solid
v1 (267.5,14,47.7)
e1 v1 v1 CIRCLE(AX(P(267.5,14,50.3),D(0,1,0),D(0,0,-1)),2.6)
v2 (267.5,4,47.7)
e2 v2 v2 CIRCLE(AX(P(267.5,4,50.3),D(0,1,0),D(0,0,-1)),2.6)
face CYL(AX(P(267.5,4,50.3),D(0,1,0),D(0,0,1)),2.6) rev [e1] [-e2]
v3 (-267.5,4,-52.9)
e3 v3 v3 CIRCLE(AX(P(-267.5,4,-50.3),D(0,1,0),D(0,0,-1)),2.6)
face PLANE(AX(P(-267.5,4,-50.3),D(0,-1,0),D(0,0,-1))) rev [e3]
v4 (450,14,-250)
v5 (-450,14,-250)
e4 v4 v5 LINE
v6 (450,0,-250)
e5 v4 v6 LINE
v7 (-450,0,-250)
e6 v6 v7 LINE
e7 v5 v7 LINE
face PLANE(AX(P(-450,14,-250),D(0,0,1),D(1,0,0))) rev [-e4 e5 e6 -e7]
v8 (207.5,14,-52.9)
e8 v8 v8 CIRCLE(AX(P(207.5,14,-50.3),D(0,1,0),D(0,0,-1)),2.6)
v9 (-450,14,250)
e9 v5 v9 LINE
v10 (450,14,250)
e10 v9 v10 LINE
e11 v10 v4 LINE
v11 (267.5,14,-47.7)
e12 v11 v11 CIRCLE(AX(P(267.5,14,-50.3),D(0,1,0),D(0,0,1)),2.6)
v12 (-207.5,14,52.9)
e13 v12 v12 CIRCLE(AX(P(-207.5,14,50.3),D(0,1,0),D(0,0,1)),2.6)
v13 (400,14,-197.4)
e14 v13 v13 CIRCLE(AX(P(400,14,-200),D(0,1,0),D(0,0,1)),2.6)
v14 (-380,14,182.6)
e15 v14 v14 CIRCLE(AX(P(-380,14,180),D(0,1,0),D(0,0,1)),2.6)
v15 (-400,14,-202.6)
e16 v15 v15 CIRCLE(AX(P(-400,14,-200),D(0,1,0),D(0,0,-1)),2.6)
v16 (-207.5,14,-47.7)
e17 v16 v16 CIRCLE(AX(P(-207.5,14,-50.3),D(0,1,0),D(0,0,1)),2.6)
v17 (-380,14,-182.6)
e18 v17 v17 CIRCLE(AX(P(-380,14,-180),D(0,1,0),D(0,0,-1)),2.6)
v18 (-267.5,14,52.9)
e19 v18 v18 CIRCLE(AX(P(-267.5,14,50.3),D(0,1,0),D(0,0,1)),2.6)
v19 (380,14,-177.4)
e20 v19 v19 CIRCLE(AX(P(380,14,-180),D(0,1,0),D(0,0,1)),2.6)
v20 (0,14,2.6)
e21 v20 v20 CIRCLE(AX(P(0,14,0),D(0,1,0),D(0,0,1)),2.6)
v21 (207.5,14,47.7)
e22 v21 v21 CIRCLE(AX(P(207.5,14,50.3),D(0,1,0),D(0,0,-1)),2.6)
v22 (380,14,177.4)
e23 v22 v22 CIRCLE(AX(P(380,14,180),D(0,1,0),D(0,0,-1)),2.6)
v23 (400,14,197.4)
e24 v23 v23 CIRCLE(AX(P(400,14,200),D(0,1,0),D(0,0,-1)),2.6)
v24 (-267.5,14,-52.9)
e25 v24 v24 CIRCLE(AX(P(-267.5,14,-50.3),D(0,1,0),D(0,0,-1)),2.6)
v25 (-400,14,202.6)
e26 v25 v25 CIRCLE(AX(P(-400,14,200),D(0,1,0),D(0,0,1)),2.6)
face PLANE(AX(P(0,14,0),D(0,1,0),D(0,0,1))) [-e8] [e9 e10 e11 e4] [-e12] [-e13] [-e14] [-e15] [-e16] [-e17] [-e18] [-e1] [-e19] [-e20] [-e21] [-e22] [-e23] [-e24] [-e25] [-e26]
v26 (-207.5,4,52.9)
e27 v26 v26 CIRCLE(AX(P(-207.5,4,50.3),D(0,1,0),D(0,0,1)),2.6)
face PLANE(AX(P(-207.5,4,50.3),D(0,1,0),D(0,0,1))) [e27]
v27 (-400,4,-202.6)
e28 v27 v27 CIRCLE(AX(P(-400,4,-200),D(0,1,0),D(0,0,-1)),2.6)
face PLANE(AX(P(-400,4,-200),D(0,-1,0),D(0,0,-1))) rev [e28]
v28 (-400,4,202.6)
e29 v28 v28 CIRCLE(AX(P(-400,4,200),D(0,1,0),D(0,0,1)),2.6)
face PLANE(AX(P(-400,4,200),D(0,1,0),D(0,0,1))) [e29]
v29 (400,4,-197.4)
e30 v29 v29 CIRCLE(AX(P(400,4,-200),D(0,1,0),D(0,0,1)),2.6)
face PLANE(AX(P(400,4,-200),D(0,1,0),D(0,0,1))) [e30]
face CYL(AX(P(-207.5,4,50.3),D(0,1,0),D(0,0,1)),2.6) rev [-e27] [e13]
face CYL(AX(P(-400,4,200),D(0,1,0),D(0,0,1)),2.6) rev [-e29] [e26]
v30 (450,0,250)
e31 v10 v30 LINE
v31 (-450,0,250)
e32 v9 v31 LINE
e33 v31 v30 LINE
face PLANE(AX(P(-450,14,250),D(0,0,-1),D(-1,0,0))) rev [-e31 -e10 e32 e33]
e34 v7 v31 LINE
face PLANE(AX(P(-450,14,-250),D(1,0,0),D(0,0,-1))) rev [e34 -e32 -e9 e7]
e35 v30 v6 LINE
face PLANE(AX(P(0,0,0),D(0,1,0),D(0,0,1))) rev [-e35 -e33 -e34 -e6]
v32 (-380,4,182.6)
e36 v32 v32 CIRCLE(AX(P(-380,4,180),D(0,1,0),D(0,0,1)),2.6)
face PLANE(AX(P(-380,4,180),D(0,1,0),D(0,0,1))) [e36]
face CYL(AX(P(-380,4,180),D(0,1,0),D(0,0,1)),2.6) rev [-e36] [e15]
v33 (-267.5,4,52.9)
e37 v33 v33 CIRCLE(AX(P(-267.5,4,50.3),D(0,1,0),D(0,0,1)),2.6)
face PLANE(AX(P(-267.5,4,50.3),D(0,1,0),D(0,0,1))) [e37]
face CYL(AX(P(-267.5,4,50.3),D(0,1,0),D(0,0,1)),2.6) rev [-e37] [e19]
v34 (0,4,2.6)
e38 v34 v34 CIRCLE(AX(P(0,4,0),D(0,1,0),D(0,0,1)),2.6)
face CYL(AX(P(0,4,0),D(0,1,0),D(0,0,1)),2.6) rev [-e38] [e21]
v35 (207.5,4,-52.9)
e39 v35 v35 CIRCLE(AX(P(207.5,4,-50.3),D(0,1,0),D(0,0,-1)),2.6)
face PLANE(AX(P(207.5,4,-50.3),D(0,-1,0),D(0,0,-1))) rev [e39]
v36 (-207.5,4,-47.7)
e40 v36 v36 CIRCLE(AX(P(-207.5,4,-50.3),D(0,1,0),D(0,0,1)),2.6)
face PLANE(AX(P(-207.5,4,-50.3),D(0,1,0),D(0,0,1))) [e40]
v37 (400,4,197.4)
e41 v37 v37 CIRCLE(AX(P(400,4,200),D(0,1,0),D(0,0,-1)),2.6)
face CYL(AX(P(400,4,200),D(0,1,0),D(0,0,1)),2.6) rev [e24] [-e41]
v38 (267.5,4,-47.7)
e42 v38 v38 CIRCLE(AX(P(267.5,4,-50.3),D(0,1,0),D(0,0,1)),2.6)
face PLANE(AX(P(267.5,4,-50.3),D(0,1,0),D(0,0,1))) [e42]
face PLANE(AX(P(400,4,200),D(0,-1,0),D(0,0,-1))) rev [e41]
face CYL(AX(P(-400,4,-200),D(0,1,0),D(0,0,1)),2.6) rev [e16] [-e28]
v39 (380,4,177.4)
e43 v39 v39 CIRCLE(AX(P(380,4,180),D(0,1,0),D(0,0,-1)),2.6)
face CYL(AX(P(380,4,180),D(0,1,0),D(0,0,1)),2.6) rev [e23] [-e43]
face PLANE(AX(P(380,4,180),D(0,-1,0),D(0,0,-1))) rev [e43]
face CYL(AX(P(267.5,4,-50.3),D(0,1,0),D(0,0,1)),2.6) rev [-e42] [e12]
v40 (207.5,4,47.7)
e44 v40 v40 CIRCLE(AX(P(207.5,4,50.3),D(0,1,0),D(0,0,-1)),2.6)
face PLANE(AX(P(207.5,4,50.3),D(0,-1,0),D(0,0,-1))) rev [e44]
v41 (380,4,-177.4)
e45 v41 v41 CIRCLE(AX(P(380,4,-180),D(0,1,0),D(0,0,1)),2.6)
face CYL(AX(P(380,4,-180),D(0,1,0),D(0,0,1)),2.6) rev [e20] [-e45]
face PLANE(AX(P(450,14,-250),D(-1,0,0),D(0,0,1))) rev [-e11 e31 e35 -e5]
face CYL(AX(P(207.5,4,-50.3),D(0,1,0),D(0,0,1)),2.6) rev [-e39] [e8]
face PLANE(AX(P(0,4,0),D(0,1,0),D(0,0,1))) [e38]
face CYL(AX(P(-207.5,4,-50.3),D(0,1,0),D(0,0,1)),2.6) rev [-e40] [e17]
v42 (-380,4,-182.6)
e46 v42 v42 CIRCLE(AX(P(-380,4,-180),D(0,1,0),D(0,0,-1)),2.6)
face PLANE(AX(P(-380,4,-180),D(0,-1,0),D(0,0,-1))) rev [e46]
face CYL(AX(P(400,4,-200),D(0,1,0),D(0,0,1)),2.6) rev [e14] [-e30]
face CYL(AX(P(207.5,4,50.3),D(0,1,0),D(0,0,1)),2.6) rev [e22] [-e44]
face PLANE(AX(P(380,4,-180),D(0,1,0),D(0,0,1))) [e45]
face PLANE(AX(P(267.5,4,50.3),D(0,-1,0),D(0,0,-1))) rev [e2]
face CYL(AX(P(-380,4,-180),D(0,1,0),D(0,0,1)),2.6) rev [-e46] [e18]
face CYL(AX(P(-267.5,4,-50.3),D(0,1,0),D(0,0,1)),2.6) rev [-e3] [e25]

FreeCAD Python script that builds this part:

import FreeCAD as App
import Part
import Sketcher

doc = App.newDocument("Part")
body = doc.addObject("PartDesign::Body", "Body")

# Sketch on XZ plane
sketch1 = body.newObject("Sketcher::SketchObject", "Sketch")
sketch1.AttachmentSupport = (doc.getObject("XZ_Plane"), [""])
sketch1.MapMode = "FlatFace"
sketch1.addGeometry([
    Part.LineSegment(App.Vector(-450, -250, 0), App.Vector(-450, 250, 0)),
    Part.LineSegment(App.Vector(-450, 250, 0), App.Vector(450, 250, 0)),
    Part.LineSegment(App.Vector(450, 250, 0), App.Vector(450, -250, 0)),
    Part.LineSegment(App.Vector(450, -250, 0), App.Vector(-450, -250, 0)),
], False)
sketch1.addConstraint([
    Sketcher.Constraint("Coincident", 0, 2, 1, 1),
    Sketcher.Constraint("Coincident", 1, 2, 2, 1),
    Sketcher.Constraint("Coincident", 2, 2, 3, 1),
    Sketcher.Constraint("Coincident", 3, 2, 0, 1),
    Sketcher.Constraint("Vertical", 0),
    Sketcher.Constraint("Horizontal", 1),
    Sketcher.Constraint("Vertical", 2),
    Sketcher.Constraint("Horizontal", 3),
    Sketcher.Constraint("Symmetric", 0, 2, 2, 2, -1, 1),
    Sketcher.Constraint("DistanceX", 1, 1, 1, 2, 900.0),
    Sketcher.Constraint("DistanceY", 0, 1, 0, 2, 500.0),
])
pad1 = body.newObject("PartDesign::Pad", "Pad")
pad1.Profile = sketch1
pad1.Length = 14
pad1.Reversed = True

# Sketch on XZ plane
sketch2 = body.newObject("Sketcher::SketchObject", "Sketch001")
sketch2.AttachmentSupport = (doc.getObject("XZ_Plane"), [""])
sketch2.MapMode = "FlatFace"
sketch2.AttachmentOffset = App.Placement(App.Vector(0, 0, -14), App.Rotation())
sketch2.addGeometry([
    Part.Circle(App.Vector(-207.5, -50.3, 0), App.Vector(0, 0, 1), 2.6),  # 0
    Part.Circle(App.Vector(-207.5, 50.3, 0), App.Vector(0, 0, 1), 2.6),  # 1
    Part.Circle(App.Vector(0, 0, 0), App.Vector(0, 0, 1), 2.6),  # 2
    Part.Circle(App.Vector(-267.5, 50.3, 0), App.Vector(0, 0, 1), 2.6),  # 3
    Part.Circle(App.Vector(-267.5, -50.3, 0), App.Vector(0, 0, 1), 2.6),  # 4
    Part.Circle(App.Vector(-400, 200, 0), App.Vector(0, 0, 1), 2.6),  # 5
    Part.Circle(App.Vector(-380, 180, 0), App.Vector(0, 0, 1), 2.6),  # 6
    Part.Circle(App.Vector(-380, -180, 0), App.Vector(0, 0, 1), 2.6),  # 7
    Part.Circle(App.Vector(-400, -200, 0), App.Vector(0, 0, 1), 2.6),  # 8
    Part.Circle(App.Vector(400, 200, 0), App.Vector(0, 0, 1), 2.6),  # 9
    Part.Circle(App.Vector(380, 180, 0), App.Vector(0, 0, 1), 2.6),  # 10
    Part.Circle(App.Vector(400, -200, 0), App.Vector(0, 0, 1), 2.6),  # 11
    Part.Circle(App.Vector(380, -180, 0), App.Vector(0, 0, 1), 2.6),  # 12
    Part.Circle(App.Vector(267.5, -50.3, 0), App.Vector(0, 0, 1), 2.6),  # 13
    Part.Circle(App.Vector(267.5, 50.3, 0), App.Vector(0, 0, 1), 2.6),  # 14
    Part.Circle(App.Vector(207.5, 50.3, 0), App.Vector(0, 0, 1), 2.6),  # 15
    Part.Circle(App.Vector(207.5, -50.3, 0), App.Vector(0, 0, 1), 2.6),  # 16
], False)
sketch2.addConstraint([
    Sketcher.Constraint("Coincident", 2, 3, -1, 1),
    Sketcher.Constraint("Equal", 0, 1),
    Sketcher.Constraint("Equal", 1, 2),
    Sketcher.Constraint("Equal", 2, 3),
    Sketcher.Constraint("Equal", 3, 4),
    Sketcher.Constraint("Equal", 4, 5),
    Sketcher.Constraint("Equal", 5, 6),
    Sketcher.Constraint("Equal", 6, 7),
    Sketcher.Constraint("Equal", 7, 8),
    Sketcher.Constraint("Equal", 8, 9),
    Sketcher.Constraint("Equal", 9, 10),
    Sketcher.Constraint("Equal", 10, 11),
    Sketcher.Constraint("Equal", 11, 12),
    Sketcher.Constraint("Equal", 12, 13),
    Sketcher.Constraint("Equal", 13, 14),
    Sketcher.Constraint("Equal", 14, 15),
    Sketcher.Constraint("Equal", 15, 16),
    Sketcher.Constraint("Symmetric", 8, 3, 9, 3, -1, 1),
    Sketcher.Constraint("Symmetric", 7, 3, 10, 3, -1, 1),
    Sketcher.Constraint("Symmetric", 5, 3, 11, 3, -1, 1),
    Sketcher.Constraint("Symmetric", 6, 3, 12, 3, -1, 1),
    Sketcher.Constraint("Symmetric", 3, 3, 13, 3, -1, 1),
    Sketcher.Constraint("Symmetric", 4, 3, 14, 3, -1, 1),
    Sketcher.Constraint("Symmetric", 0, 3, 15, 3, -1, 1),
    Sketcher.Constraint("Symmetric", 1, 3, 16, 3, -1, 1),
    Sketcher.Constraint("Symmetric", 5, 3, 9, 3, -2),
    Sketcher.Constraint("Symmetric", 6, 3, 10, 3, -2),
    Sketcher.Constraint("Symmetric", 4, 3, 13, 3, -2),
    Sketcher.Constraint("Symmetric", 1, 3, 15, 3, -2),
    Sketcher.Constraint("Horizontal", 1, 3, 3, 3),
    Sketcher.Constraint("Diameter", 0, 5.2),
    Sketcher.Constraint("DistanceX", 5, 3, -1, 1, 400.0),
    Sketcher.Constraint("DistanceY", -1, 1, 5, 3, 200.0),
    Sketcher.Constraint("DistanceX", 6, 3, -1, 1, 380.0),
    Sketcher.Constraint("DistanceY", -1, 1, 6, 3, 180.0),
    Sketcher.Constraint("DistanceX", 3, 3, 1, 3, 60.0),
    Sketcher.Constraint("DistanceX", 0, 3, -1, 1, 207.5),
    Sketcher.Constraint("DistanceY", 0, 3, -1, 1, 50.3),
])
pocket1 = body.newObject("PartDesign::Pocket", "Pocket")
pocket1.Profile = sketch2
pocket1.Length = 10
pocket1.Reversed = True

doc.recompute()
